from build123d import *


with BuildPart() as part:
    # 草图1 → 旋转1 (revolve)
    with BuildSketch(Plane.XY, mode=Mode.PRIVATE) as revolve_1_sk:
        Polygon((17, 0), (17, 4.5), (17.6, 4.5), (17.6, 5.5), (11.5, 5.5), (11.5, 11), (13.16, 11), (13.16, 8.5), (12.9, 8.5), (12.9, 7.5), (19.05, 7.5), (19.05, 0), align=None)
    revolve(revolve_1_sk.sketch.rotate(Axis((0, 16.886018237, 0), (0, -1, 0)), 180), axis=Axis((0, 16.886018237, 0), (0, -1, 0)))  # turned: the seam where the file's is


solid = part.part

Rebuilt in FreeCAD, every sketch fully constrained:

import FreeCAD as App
import Part
import Sketcher
from FreeCAD import Vector
Q = App.Units.Quantity


def add_polygon(sketch, points):
    """Adds a closed chain of lines whose ends are joined by coincident constraints."""
    first, n = sketch.GeometryCount, len(points)
    for a, b in zip(points, points[1:] + points[:1]):
        sketch.addGeometry(Part.LineSegment(App.Vector(*a, 0), App.Vector(*b, 0)), False)
    for i in range(n):
        sketch.addConstraint(Sketcher.Constraint("Coincident", first + i, 2, first + (i + 1) % n, 1))

doc = App.newDocument("Part")
params = doc.addObject("Spreadsheet::Sheet", "Params")
for row, (alias, value) in enumerate([
    ("sketch1_height", "1 mm"),
    ("sketch1_width", "6.1 mm"),
    ("sketch1_width2", "0.6 mm"),
    ("sketch1_height2", "4.5 mm"),
    ("sketch1_height3", "7.5 mm"),
    ("revolution_angle", "360 deg"),
], start=1):
    params.set(f"A{row}", alias)
    params.set(f"B{row}", "=" + value)
    params.setAlias(f"B{row}", alias)

body = doc.addObject("PartDesign::Body", "Body")

# Sketch on XY plane
sketch1 = doc.addObject("Sketcher::SketchObject", "Sketch")
body.addObject(sketch1)
sketch1.AttachmentSupport = (doc.XY_Plane, [""])
sketch1.MapMode = "FlatFace"
add_polygon(sketch1, [(17, 4.5), (17, 0), (19.05, 0), (19.05, 7.5), (12.9, 7.5), (12.9, 8.5), (13.16, 8.5), (13.16, 11), (11.5, 11), (11.5, 5.5), (17.6, 5.5), (17.6, 4.5)])  # lines 0-11
sketch1.addConstraint(Sketcher.Constraint("Vertical", 0))
sketch1.addConstraint(Sketcher.Constraint("Horizontal", 1))
sketch1.addConstraint(Sketcher.Constraint("Vertical", 2))
sketch1.addConstraint(Sketcher.Constraint("Horizontal", 3))
sketch1.addConstraint(Sketcher.Constraint("Vertical", 4))
sketch1.addConstraint(Sketcher.Constraint("Horizontal", 5))
sketch1.addConstraint(Sketcher.Constraint("Vertical", 6))
sketch1.addConstraint(Sketcher.Constraint("Horizontal", 7))
sketch1.addConstraint(Sketcher.Constraint("Vertical", 8))
sketch1.addConstraint(Sketcher.Constraint("Horizontal", 9))
sketch1.addConstraint(Sketcher.Constraint("Vertical", 10))
sketch1.addConstraint(Sketcher.Constraint("Horizontal", 11))
sketch1.addConstraint(Sketcher.Constraint("PointOnObject", 0, 2, -1))
sketch1.addConstraint(Sketcher.Constraint("Equal", 4, 10))
sketch1.addConstraint(Sketcher.Constraint("DistanceY", 4, 1, 4, 2, Q("1 mm")))
sketch1.addConstraint(Sketcher.Constraint("DistanceX", 9, 1, 9, 2, Q("6.1 mm")))
sketch1.addConstraint(Sketcher.Constraint("DistanceX", 11, 2, 11, 1, Q("0.6 mm")))
sketch1.addConstraint(Sketcher.Constraint("DistanceY", 0, 2, 0, 1, Q("4.5 mm")))
sketch1.addConstraint(Sketcher.Constraint("DistanceY", 2, 1, 2, 2, Q("7.5 mm")))
sketch1.addConstraint(Sketcher.Constraint("DistanceY", 6, 1, 6, 2, Q("2.5 mm")))
sketch1.addConstraint(Sketcher.Constraint("DistanceX", -1, 1, 0, 2, Q("17 mm")))
sketch1.addConstraint(Sketcher.Constraint("DistanceX", 1, 1, 1, 2, Q("2.05 mm")))
sketch1.addConstraint(Sketcher.Constraint("DistanceX", 3, 2, 3, 1, Q("6.15 mm")))
sketch1.addConstraint(Sketcher.Constraint("DistanceX", 5, 1, 5, 2, Q("0.26 mm")))
sketch1.setExpression("Constraints[26]", "Params.sketch1_height")
sketch1.setExpression("Constraints[27]", "Params.sketch1_width")
sketch1.setExpression("Constraints[28]", "Params.sketch1_width2")
sketch1.setExpression("Constraints[29]", "Params.sketch1_height2")
sketch1.setExpression("Constraints[30]", "Params.sketch1_height3")
revolution = doc.addObject("PartDesign::Revolution", "Revolution")
body.addObject(revolution)
revolution.Profile = sketch1
revolution.ReferenceAxis = (sketch1, ["V_Axis"])
revolution.setExpression("Angle", "Params.revolution_angle")

doc.recompute()
